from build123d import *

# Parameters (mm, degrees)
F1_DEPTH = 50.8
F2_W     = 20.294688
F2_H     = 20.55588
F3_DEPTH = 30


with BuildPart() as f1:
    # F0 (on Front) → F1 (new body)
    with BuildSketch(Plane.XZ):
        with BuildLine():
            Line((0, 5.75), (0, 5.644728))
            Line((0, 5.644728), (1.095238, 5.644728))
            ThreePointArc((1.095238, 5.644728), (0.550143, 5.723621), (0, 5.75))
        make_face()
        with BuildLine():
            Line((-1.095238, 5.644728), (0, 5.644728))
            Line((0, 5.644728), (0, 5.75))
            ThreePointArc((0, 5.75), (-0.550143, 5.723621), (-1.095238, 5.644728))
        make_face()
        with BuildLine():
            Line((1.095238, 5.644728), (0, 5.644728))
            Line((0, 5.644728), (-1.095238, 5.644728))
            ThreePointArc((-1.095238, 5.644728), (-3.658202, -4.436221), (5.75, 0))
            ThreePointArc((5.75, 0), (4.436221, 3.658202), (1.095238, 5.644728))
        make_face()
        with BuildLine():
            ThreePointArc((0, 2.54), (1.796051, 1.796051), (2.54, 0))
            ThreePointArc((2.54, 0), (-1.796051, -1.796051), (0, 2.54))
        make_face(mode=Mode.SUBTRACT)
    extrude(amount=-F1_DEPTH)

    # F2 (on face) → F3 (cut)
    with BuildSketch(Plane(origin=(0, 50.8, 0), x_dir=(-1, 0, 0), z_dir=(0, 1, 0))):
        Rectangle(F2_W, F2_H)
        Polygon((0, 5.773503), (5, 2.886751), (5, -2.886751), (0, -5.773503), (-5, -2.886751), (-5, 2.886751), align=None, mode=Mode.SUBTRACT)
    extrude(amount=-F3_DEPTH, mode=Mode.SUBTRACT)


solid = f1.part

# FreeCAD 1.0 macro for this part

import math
import FreeCAD as App
import Part
import Sketcher
Q = App.Units.Quantity

doc = App.newDocument("Part")
body = doc.addObject("PartDesign::Body", "Body")

sketch1 = body.newObject("Sketcher::SketchObject", "Sketch")
sketch1.AttachmentSupport = (doc.getObject("XZ_Plane"), [""])
sketch1.MapMode = "FlatFace"
sketch1.addGeometry(Part.ArcOfCircle(Part.Circle(App.Vector(-0.00001, -0.000105, 0), App.Vector(0, 0, 1), 5.750105), math.radians(79.019528), math.radians(89.999902)), False)
sketch1.addGeometry(Part.ArcOfCircle(Part.Circle(App.Vector(0.00001, -0.000105, 0), App.Vector(0, 0, 1), 5.750105), math.radians(90.000098), math.radians(100.980472)), False)
sketch1.addGeometry(Part.ArcOfCircle(Part.Circle(App.Vector(0, 0, 0), App.Vector(0, 0, 1), 5.75), math.radians(100.980575), math.radians(359.999999)), False)
sketch1.addGeometry(Part.ArcOfCircle(Part.Circle(App.Vector(0, 0, 0), App.Vector(0, 0, 1), 5.75), math.radians(0.000004), math.radians(79.019422)), False)
sketch1.addGeometry(Part.ArcOfCircle(Part.Circle(App.Vector(0, 0, 0), App.Vector(0, 0, 1), 2.54), math.radians(90.000003), math.radians(359.999997)), False)
sketch1.addGeometry(Part.ArcOfCircle(Part.Circle(App.Vector(-0.000001, -0.000001, 0), App.Vector(0, 0, 1), 2.540001), math.radians(0.000017), math.radians(89.999983)), False)
sketch1.addConstraint(Sketcher.Constraint("Coincident", 0, 2, 1, 1))
sketch1.addConstraint(Sketcher.Constraint("Coincident", 1, 2, 2, 1))
sketch1.addConstraint(Sketcher.Constraint("Coincident", 2, 2, 3, 1))
sketch1.addConstraint(Sketcher.Constraint("Coincident", 3, 2, 0, 1))
sketch1.addConstraint(Sketcher.Constraint("Coincident", 4, 1, 5, 2))
sketch1.addConstraint(Sketcher.Constraint("Coincident", 5, 1, 4, 2))
sketch1.addConstraint(Sketcher.Constraint("Coincident", 2, 3, -1, 1))
sketch1.addConstraint(Sketcher.Constraint("Coincident", 3, 3, -1, 1))
sketch1.addConstraint(Sketcher.Constraint("Coincident", 4, 3, -1, 1))
sketch1.addConstraint(Sketcher.Constraint("PointOnObject", 0, 2, -2))
sketch1.addConstraint(Sketcher.Constraint("PointOnObject", 2, 2, -1))
sketch1.addConstraint(Sketcher.Constraint("PointOnObject", 4, 1, -2))
sketch1.addConstraint(Sketcher.Constraint("PointOnObject", 5, 1, -1))
sketch1.addConstraint(Sketcher.Constraint("Radius", 2, Q("5.75 mm")))
sketch1.addConstraint(Sketcher.Constraint("Radius", 4, Q("2.54 mm")))
sketch1.addConstraint(Sketcher.Constraint("Radius", 5, Q("2.540001 mm")))
sketch1.addConstraint(Sketcher.Constraint("DistanceY", -1, 1, 0, 2, Q("5.75 mm")))
sketch1.addConstraint(Sketcher.Constraint("Radius", 0, Q("5.750105 mm")))
sketch1.addConstraint(Sketcher.Constraint("Radius", 1, Q("5.750105 mm")))
sketch1.addConstraint(Sketcher.Constraint("DistanceX", 1, 2, -1, 1, Q("1.095238 mm")))
sketch1.addConstraint(Sketcher.Constraint("DistanceX", -1, 1, 3, 2, Q("1.095238 mm")))
pad1 = body.newObject("PartDesign::Pad", "Pad")
pad1.Profile = sketch1
pad1.Length = 50.8
pad1.Reversed = True

sketch2 = body.newObject("Sketcher::SketchObject", "Sketch001")
sketch2.AttachmentSupport = (doc.getObject("XZ_Plane"), [""])
sketch2.MapMode = "FlatFace"
sketch2.AttachmentOffset = App.Placement(App.Vector(0, 0, -50.8), App.Rotation())
sketch2.addGeometry(Part.LineSegment(App.Vector(10, 10, 0), App.Vector(10, -10, 0)), False)
sketch2.addGeometry(Part.LineSegment(App.Vector(10, -10, 0), App.Vector(-10, -10, 0)), False)
sketch2.addGeometry(Part.LineSegment(App.Vector(-10, -10, 0), App.Vector(-10, 10, 0)), False)
sketch2.addGeometry(Part.LineSegment(App.Vector(-10, 10, 0), App.Vector(10, 10, 0)), False)
sketch2.addGeometry(Part.LineSegment(App.Vector(5, 3, 0), App.Vector(0, 6, 0)), False)
sketch2.addGeometry(Part.LineSegment(App.Vector(0, 6, 0), App.Vector(-5, 3, 0)), False)
sketch2.addGeometry(Part.LineSegment(App.Vector(-5, 3, 0), App.Vector(-5, -3, 0)), False)
sketch2.addGeometry(Part.LineSegment(App.Vector(-5, -3, 0), App.Vector(0, -6, 0)), False)
sketch2.addGeometry(Part.LineSegment(App.Vector(0, -6, 0), App.Vector(5, -3, 0)), False)
sketch2.addGeometry(Part.LineSegment(App.Vector(5, -3, 0), App.Vector(5, 3, 0)), False)
sketch2.addConstraint(Sketcher.Constraint("Coincident", 0, 2, 1, 1))
sketch2.addConstraint(Sketcher.Constraint("Coincident", 1, 2, 2, 1))
sketch2.addConstraint(Sketcher.Constraint("Coincident", 2, 2, 3, 1))
sketch2.addConstraint(Sketcher.Constraint("Coincident", 3, 2, 0, 1))
sketch2.addConstraint(Sketcher.Constraint("Coincident", 4, 2, 5, 1))
sketch2.addConstraint(Sketcher.Constraint("Coincident", 5, 2, 6, 1))
sketch2.addConstraint(Sketcher.Constraint("Coincident", 6, 2, 7, 1))
sketch2.addConstraint(Sketcher.Constraint("Coincident", 7, 2, 8, 1))
sketch2.addConstraint(Sketcher.Constraint("Coincident", 8, 2, 9, 1))
sketch2.addConstraint(Sketcher.Constraint("Coincident", 9, 2, 4, 1))
sketch2.addConstraint(Sketcher.Constraint("Vertical", 0))
sketch2.addConstraint(Sketcher.Constraint("Horizontal", 1))
sketch2.addConstraint(Sketcher.Constraint("Vertical", 2))
sketch2.addConstraint(Sketcher.Constraint("Horizontal", 3))
sketch2.addConstraint(Sketcher.Constraint("Vertical", 6))
sketch2.addConstraint(Sketcher.Constraint("Vertical", 9))
sketch2.addConstraint(Sketcher.Constraint("Symmetric", 0, 2, 2, 2, -1, 1))
sketch2.addConstraint(Sketcher.Constraint("Symmetric", 4, 2, 7, 2, -1, 1))
sketch2.addConstraint(Sketcher.Constraint("Symmetric", 5, 2, 8, 2, -1, 1))
sketch2.addConstraint(Sketcher.Constraint("PointOnObject", 4, 2, -2))
sketch2.addConstraint(Sketcher.Constraint("Parallel", 4, 7))
sketch2.addConstraint(Sketcher.Constraint("Horizontal", 6, 2, 8, 2))
sketch2.addConstraint(Sketcher.Constraint("Angle", 4, Q("149.999994 deg")))
sketch2.addConstraint(Sketcher.Constraint("DistanceX", 5, 2, -1, 1, Q("5 mm")))
sketch2.addConstraint(Sketcher.Constraint("DistanceY", 6, 2, 6, 1, Q("5.773502 mm")))
sketch2.addConstraint(Sketcher.Constraint("DistanceX", 1, 2, 1, 1, Q("20.294688 mm")))
sketch2.addConstraint(Sketcher.Constraint("DistanceY", 0, 2, 0, 1, Q("20.55588 mm")))
pocket1 = body.newObject("PartDesign::Pocket", "Pocket")
pocket1.Profile = sketch2
pocket1.Length = 30
pocket1.Reversed = True

doc.recompute()
